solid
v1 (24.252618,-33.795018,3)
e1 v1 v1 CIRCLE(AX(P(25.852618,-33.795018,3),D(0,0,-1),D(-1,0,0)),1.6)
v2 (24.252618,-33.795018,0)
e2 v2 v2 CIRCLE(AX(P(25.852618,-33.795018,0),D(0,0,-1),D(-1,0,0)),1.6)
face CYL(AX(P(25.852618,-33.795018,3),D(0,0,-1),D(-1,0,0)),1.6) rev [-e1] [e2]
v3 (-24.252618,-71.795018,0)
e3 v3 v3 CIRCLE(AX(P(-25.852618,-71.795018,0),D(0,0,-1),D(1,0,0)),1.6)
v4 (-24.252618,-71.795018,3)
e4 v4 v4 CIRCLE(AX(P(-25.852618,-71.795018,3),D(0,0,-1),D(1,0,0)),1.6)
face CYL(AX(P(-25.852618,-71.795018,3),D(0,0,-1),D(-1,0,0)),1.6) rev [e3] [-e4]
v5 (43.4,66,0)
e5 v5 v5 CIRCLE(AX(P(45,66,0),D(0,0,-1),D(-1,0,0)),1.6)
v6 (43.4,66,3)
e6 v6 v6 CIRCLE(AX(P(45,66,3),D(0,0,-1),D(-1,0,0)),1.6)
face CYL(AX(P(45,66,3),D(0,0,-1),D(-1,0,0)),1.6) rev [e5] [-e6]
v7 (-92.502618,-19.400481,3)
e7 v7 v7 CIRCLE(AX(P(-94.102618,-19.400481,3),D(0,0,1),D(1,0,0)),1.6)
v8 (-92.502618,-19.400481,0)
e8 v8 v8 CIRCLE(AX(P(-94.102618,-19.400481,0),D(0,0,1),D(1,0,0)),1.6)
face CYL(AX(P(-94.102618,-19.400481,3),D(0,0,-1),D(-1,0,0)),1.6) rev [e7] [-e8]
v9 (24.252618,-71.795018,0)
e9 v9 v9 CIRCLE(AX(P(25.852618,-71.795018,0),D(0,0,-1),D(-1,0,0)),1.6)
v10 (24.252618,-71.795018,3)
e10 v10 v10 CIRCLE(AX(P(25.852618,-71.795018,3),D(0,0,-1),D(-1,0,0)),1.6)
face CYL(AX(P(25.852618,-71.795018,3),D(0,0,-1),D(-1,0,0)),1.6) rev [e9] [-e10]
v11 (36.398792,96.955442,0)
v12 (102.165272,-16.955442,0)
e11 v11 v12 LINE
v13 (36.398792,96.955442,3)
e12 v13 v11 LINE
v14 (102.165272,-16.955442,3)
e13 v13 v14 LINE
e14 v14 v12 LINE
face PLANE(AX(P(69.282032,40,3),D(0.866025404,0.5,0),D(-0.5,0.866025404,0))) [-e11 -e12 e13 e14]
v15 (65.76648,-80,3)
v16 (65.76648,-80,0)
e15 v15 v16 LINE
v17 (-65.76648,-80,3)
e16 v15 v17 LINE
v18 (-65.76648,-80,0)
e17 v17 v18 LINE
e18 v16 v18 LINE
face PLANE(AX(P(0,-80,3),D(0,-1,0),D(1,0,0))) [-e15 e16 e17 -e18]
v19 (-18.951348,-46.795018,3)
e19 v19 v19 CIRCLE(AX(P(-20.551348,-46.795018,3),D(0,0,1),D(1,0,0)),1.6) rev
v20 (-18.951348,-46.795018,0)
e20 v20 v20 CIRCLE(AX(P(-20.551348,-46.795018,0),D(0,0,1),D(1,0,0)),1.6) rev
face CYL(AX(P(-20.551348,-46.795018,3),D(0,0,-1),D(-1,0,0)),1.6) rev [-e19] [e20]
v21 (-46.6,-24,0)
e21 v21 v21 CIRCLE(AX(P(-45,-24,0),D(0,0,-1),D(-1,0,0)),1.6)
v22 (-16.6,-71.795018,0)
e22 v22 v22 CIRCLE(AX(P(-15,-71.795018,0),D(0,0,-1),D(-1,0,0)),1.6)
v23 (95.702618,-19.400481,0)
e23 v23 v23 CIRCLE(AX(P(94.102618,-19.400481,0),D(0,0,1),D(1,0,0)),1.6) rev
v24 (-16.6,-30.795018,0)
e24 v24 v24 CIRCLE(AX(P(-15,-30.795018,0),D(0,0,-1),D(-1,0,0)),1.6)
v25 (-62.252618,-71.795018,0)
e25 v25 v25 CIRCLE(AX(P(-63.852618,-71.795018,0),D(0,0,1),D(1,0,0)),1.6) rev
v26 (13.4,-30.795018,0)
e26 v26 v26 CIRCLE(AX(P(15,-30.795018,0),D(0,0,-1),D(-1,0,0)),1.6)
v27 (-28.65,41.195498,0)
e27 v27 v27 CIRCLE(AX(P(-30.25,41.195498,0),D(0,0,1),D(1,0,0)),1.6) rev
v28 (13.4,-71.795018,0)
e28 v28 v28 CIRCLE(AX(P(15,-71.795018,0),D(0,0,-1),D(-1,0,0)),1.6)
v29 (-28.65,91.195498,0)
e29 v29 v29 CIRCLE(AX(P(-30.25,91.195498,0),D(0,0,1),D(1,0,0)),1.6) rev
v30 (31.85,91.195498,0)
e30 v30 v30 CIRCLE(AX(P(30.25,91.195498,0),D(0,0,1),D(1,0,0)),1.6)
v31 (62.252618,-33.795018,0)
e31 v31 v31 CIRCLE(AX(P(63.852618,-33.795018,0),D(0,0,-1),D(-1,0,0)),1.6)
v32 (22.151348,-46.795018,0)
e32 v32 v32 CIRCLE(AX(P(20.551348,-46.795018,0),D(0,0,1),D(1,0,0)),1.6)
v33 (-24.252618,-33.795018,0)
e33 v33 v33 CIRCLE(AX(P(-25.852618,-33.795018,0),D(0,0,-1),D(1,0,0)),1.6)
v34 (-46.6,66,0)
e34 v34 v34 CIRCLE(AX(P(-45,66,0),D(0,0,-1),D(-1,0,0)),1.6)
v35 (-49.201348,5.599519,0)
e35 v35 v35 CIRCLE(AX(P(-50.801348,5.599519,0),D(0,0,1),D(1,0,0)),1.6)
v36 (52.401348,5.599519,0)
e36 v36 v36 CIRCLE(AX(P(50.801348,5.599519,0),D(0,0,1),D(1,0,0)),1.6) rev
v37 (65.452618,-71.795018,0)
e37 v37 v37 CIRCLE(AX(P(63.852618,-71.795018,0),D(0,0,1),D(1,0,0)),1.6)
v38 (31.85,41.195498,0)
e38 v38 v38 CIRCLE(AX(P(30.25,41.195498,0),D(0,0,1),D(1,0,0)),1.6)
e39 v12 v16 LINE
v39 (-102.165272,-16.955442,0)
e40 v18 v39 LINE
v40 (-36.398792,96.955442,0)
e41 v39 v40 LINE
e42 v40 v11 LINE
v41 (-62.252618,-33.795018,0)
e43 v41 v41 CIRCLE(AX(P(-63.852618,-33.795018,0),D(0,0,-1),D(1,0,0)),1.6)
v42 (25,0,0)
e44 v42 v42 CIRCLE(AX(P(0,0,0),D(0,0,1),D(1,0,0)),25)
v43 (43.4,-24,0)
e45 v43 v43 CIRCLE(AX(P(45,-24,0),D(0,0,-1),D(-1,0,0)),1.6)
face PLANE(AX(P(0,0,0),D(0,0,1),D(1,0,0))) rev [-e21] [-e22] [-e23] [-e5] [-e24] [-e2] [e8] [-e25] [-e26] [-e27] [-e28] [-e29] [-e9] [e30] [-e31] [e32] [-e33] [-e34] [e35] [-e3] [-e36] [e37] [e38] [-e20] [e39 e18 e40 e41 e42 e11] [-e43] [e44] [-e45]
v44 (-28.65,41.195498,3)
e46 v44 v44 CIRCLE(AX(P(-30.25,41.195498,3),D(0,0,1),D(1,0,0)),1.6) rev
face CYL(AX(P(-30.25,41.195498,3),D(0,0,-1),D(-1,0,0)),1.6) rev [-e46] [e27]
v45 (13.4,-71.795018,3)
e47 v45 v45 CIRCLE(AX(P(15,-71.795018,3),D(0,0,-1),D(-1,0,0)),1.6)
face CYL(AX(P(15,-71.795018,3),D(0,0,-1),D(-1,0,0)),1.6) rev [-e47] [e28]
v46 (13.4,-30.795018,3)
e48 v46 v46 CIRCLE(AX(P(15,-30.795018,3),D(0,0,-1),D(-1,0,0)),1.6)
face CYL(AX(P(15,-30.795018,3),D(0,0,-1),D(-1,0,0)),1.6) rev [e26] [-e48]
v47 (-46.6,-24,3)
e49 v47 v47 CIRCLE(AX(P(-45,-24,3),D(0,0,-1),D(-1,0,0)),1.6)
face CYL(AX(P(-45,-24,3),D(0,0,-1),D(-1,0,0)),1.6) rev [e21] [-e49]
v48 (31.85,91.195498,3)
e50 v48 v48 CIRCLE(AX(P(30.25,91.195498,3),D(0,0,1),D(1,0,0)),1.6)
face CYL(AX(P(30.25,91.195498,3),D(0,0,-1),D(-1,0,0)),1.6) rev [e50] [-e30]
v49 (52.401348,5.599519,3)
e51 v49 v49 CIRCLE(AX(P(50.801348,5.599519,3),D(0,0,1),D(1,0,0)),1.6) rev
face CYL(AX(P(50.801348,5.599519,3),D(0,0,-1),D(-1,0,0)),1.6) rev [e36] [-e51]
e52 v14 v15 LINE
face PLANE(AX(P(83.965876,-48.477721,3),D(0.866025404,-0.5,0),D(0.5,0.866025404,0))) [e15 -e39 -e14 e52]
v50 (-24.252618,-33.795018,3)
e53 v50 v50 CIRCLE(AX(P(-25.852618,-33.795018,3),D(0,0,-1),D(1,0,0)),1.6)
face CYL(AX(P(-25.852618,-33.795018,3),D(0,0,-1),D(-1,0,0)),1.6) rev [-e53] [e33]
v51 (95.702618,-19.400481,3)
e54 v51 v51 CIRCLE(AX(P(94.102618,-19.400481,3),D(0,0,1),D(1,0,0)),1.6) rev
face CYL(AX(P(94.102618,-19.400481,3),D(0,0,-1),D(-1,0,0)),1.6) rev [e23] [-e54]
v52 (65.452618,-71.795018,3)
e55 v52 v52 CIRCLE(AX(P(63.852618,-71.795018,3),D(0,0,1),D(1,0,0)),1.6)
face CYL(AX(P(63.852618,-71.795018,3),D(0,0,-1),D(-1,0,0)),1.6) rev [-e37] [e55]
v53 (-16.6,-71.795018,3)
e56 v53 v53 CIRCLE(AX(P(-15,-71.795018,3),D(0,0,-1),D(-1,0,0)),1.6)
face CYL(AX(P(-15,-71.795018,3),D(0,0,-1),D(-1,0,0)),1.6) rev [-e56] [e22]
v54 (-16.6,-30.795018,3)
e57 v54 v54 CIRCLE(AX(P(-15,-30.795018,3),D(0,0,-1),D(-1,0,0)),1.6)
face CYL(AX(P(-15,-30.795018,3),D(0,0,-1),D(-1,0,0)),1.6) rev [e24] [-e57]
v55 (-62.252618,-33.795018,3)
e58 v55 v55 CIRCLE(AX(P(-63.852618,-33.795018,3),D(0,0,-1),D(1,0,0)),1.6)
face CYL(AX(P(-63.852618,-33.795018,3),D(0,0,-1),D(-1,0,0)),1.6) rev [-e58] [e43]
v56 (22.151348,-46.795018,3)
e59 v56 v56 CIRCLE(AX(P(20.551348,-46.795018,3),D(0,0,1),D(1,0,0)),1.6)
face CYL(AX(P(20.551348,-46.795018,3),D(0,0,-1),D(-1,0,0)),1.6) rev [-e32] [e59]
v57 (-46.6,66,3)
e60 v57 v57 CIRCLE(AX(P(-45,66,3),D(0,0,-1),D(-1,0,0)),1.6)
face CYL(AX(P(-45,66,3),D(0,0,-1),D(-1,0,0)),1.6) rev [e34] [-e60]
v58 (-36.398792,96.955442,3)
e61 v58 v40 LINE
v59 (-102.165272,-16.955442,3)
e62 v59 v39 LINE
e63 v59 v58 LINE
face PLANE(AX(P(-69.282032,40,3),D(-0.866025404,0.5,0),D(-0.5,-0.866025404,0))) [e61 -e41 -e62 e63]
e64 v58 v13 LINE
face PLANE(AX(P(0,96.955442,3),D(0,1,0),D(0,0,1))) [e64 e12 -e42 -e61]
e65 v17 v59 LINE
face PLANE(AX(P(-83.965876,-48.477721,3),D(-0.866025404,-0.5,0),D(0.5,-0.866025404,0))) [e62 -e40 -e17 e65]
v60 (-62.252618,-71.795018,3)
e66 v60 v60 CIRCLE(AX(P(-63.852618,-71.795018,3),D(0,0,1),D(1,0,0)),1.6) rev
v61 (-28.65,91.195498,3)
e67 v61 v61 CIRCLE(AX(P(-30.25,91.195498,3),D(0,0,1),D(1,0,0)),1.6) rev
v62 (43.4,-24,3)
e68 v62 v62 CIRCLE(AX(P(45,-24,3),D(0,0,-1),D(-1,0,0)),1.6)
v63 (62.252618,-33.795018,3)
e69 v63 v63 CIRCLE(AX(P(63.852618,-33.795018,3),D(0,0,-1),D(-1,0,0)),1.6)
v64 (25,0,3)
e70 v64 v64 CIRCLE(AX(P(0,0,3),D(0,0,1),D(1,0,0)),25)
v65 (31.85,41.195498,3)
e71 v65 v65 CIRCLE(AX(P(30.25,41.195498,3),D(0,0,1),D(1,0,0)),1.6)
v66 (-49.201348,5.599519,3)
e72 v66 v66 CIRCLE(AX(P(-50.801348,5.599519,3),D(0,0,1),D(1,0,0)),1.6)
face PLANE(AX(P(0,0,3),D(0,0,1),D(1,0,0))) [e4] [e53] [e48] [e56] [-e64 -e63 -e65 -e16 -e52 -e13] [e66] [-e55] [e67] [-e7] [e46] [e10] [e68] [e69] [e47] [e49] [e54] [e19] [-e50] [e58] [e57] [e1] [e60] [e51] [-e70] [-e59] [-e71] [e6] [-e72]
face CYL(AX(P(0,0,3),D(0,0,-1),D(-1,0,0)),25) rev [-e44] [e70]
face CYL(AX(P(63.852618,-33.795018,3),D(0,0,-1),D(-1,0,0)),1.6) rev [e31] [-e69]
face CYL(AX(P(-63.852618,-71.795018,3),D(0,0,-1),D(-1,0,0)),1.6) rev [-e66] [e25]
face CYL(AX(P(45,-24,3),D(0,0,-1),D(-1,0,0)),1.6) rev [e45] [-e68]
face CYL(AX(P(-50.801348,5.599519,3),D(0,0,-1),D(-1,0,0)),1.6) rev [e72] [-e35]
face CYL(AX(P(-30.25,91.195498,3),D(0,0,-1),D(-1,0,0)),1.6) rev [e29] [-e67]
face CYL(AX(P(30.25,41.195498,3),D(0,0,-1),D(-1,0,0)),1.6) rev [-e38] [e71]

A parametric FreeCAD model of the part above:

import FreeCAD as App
import Part
import Sketcher
from FreeCAD import Vector
Q = App.Units.Quantity

doc = App.newDocument("Part")
body = doc.addObject("PartDesign::Body", "Body")

# Sketch on XY plane
sketch1 = body.newObject("Sketcher::SketchObject", "Sketch")
sketch1.AttachmentSupport = (doc.getObject("XY_Plane"), [""])
sketch1.MapMode = "FlatFace"
sketch1.addGeometry(Part.LineSegment(Vector(36.4, 97, 0), Vector(-36.4, 97, 0)), False)
sketch1.addGeometry(Part.LineSegment(Vector(-36.4, 97, 0), Vector(-102.2, -17, 0)), False)
sketch1.addGeometry(Part.LineSegment(Vector(-102.2, -17, 0), Vector(-65.8, -80, 0)), False)
sketch1.addGeometry(Part.LineSegment(Vector(-65.8, -80, 0), Vector(65.8, -80, 0)), False)
sketch1.addGeometry(Part.LineSegment(Vector(65.8, -80, 0), Vector(102.2, -17, 0)), False)
sketch1.addGeometry(Part.LineSegment(Vector(102.2, -17, 0), Vector(36.4, 97, 0)), False)
sketch1.addGeometry(Part.Circle(Vector(63.9, -71.8, 0), Vector(0, 0, 1), 1.6), False)
sketch1.addGeometry(Part.Circle(Vector(20.6, -46.8, 0), Vector(0, 0, 1), 1.6), False)
sketch1.addGeometry(Part.Circle(Vector(94.1, -19.4, 0), Vector(0, 0, 1), 1.6), False)
sketch1.addGeometry(Part.Circle(Vector(50.8, 5.6, 0), Vector(0, 0, 1), 1.6), False)
sketch1.addGeometry(Part.Circle(Vector(-20.6, -46.8, 0), Vector(0, 0, 1), 1.6), False)
sketch1.addGeometry(Part.Circle(Vector(-63.9, -71.8, 0), Vector(0, 0, 1), 1.6), False)
sketch1.addGeometry(Part.Circle(Vector(0, 0, 0), Vector(0, 0, 1), 25), False)
sketch1.addGeometry(Part.Circle(Vector(-94.1, -19.4, 0), Vector(0, 0, 1), 1.6), False)
sketch1.addGeometry(Part.Circle(Vector(-50.8, 5.6, 0), Vector(0, 0, 1), 1.6), False)
sketch1.addGeometry(Part.Circle(Vector(30.2, 41.2, 0), Vector(0, 0, 1), 1.6), False)
sketch1.addGeometry(Part.Circle(Vector(30.2, 91.2, 0), Vector(0, 0, 1), 1.6), False)
sketch1.addGeometry(Part.Circle(Vector(-30.2, 41.2, 0), Vector(0, 0, 1), 1.6), False)
sketch1.addGeometry(Part.Circle(Vector(-30.2, 91.2, 0), Vector(0, 0, 1), 1.6), False)
sketch1.addConstraint(Sketcher.Constraint("Coincident", 0, 2, 1, 1))
sketch1.addConstraint(Sketcher.Constraint("Coincident", 1, 2, 2, 1))
sketch1.addConstraint(Sketcher.Constraint("Coincident", 2, 2, 3, 1))
sketch1.addConstraint(Sketcher.Constraint("Coincident", 3, 2, 4, 1))
sketch1.addConstraint(Sketcher.Constraint("Coincident", 4, 2, 5, 1))
sketch1.addConstraint(Sketcher.Constraint("Coincident", 5, 2, 0, 1))
sketch1.addConstraint(Sketcher.Constraint("Horizontal", 0))
sketch1.addConstraint(Sketcher.Constraint("Horizontal", 3))
sketch1.addConstraint(Sketcher.Constraint("Coincident", 12, 3, -1, 1))
sketch1.addConstraint(Sketcher.Constraint("Equal", 6, 7))
sketch1.addConstraint(Sketcher.Constraint("Equal", 7, 8))
sketch1.addConstraint(Sketcher.Constraint("Equal", 8, 9))
sketch1.addConstraint(Sketcher.Constraint("Equal", 9, 10))
sketch1.addConstraint(Sketcher.Constraint("Equal", 10, 11))
sketch1.addConstraint(Sketcher.Constraint("Equal", 11, 13))
sketch1.addConstraint(Sketcher.Constraint("Equal", 13, 14))
sketch1.addConstraint(Sketcher.Constraint("Equal", 14, 15))
sketch1.addConstraint(Sketcher.Constraint("Equal", 15, 16))
sketch1.addConstraint(Sketcher.Constraint("Equal", 16, 17))
sketch1.addConstraint(Sketcher.Constraint("Equal", 17, 18))
sketch1.addConstraint(Sketcher.Constraint("Symmetric", 7, 3, 10, 3, -2))
sketch1.addConstraint(Sketcher.Constraint("Symmetric", 6, 3, 11, 3, -2))
sketch1.addConstraint(Sketcher.Constraint("Symmetric", 8, 3, 13, 3, -2))
sketch1.addConstraint(Sketcher.Constraint("Symmetric", 9, 3, 14, 3, -2))
sketch1.addConstraint(Sketcher.Constraint("Symmetric", 15, 3, 17, 3, -2))
sketch1.addConstraint(Sketcher.Constraint("Symmetric", 16, 3, 18, 3, -2))
sketch1.addConstraint(Sketcher.Constraint("Symmetric", 1, 2, 4, 2, -2))
sketch1.addConstraint(Sketcher.Constraint("Parallel", 1, 4))
sketch1.addConstraint(Sketcher.Constraint("Parallel", 2, 5))
sketch1.addConstraint(Sketcher.Constraint("Vertical", 15, 3, 16, 3))
sketch1.addConstraint(Sketcher.Constraint("Equal", 2, 4))
sketch1.addConstraint(Sketcher.Constraint("Diameter", 12, 50.0))
sketch1.addConstraint(Sketcher.Constraint("Diameter", 6, 3.2))
sketch1.addConstraint(Sketcher.Constraint("Angle", 1, Q("-120 deg")))
sketch1.addConstraint(Sketcher.Constraint("DistanceY", 2, 2, -1, 1, 80.0))
sketch1.addConstraint(Sketcher.Constraint("DistanceY", 6, 3, 7, 3, 25.0))
sketch1.addConstraint(Sketcher.Constraint("DistanceY", 8, 3, 9, 3, 25.0))
sketch1.addConstraint(Sketcher.Constraint("DistanceY", 15, 3, 16, 3, 50.0))
sketch1.addConstraint(Sketcher.Constraint("DistanceX", 17, 3, 15, 3, 60.5))
sketch1.addConstraint(Sketcher.Constraint("DistanceX", 6, 3, 8, 3, 30.25))
sketch1.addConstraint(Sketcher.Constraint("DistanceX", 7, 3, 9, 3, 30.25))
sketch1.addConstraint(Sketcher.Constraint("DistanceX", 3, 1, 3, 2, 131.532959))
sketch1.addConstraint(Sketcher.Constraint("DistanceY", -1, 1, 15, 3, 41.195498))
sketch1.addConstraint(Sketcher.Constraint("Distance", 1, 131.532959))
sketch1.addConstraint(Sketcher.Constraint("DistanceX", 0, 2, 0, 1, 72.797585))
sketch1.addConstraint(Sketcher.Constraint("DistanceX", -1, 1, 6, 3, 63.852618))
sketch1.addConstraint(Sketcher.Constraint("DistanceY", 8, 3, -1, 1, 19.400481))
sketch1.addConstraint(Sketcher.Constraint("DistanceX", 7, 3, 6, 3, 43.30127))
sketch1.addConstraint(Sketcher.Constraint("DistanceY", 6, 3, -1, 1, 71.795018))
pad1 = body.newObject("PartDesign::Pad", "Pad")
pad1.Profile = sketch1
pad1.Length = 3

# Sketch on XY plane
sketch2 = body.newObject("Sketcher::SketchObject", "Sketch001")
sketch2.AttachmentSupport = (doc.getObject("XY_Plane"), [""])
sketch2.MapMode = "FlatFace"
sketch2.addGeometry(Part.Circle(Vector(63.9, -33.8, 0), Vector(0, 0, 1), 1.6), False)
sketch2.addGeometry(Part.Circle(Vector(25.9, -33.8, 0), Vector(0, 0, 1), 1.6), False)
sketch2.addGeometry(Part.Circle(Vector(25.9, -71.8, 0), Vector(0, 0, 1), 1.6), False)
sketch2.addGeometry(Part.Circle(Vector(63.9, -71.8, 0), Vector(0, 0, 1), 1.6), False)
sketch2.addGeometry(Part.Circle(Vector(-15, -30.8, 0), Vector(0, 0, 1), 1.6), False)
sketch2.addGeometry(Part.Circle(Vector(15, -30.8, 0), Vector(0, 0, 1), 1.6), False)
sketch2.addGeometry(Part.Circle(Vector(15, -71.8, 0), Vector(0, 0, 1), 1.6), False)
sketch2.addGeometry(Part.Circle(Vector(-15, -71.8, 0), Vector(0, 0, 1), 1.6), False)
sketch2.addGeometry(Part.Circle(Vector(-45, 66, 0), Vector(0, 0, 1), 1.6), False)
sketch2.addGeometry(Part.Circle(Vector(45, 66, 0), Vector(0, 0, 1), 1.6), False)
sketch2.addGeometry(Part.Circle(Vector(45, -24, 0), Vector(0, 0, 1), 1.6), False)
sketch2.addGeometry(Part.Circle(Vector(-45, -24, 0), Vector(0, 0, 1), 1.6), False)
sketch2.addGeometry(Part.Circle(Vector(-63.9, -71.8, 0), Vector(0, 0, 1), 1.6), False)
sketch2.addGeometry(Part.Circle(Vector(-25.9, -71.8, 0), Vector(0, 0, 1), 1.6), False)
sketch2.addGeometry(Part.Circle(Vector(-25.9, -33.8, 0), Vector(0, 0, 1), 1.6), False)
sketch2.addGeometry(Part.Circle(Vector(-63.9, -33.8, 0), Vector(0, 0, 1), 1.6), False)
sketch2.addConstraint(Sketcher.Constraint("Equal", 0, 1))
sketch2.addConstraint(Sketcher.Constraint("Equal", 1, 2))
sketch2.addConstraint(Sketcher.Constraint("Equal", 2, 3))
sketch2.addConstraint(Sketcher.Constraint("Equal", 3, 4))
sketch2.addConstraint(Sketcher.Constraint("Equal", 4, 5))
sketch2.addConstraint(Sketcher.Constraint("Equal", 5, 6))
sketch2.addConstraint(Sketcher.Constraint("Equal", 6, 7))
sketch2.addConstraint(Sketcher.Constraint("Equal", 7, 8))
sketch2.addConstraint(Sketcher.Constraint("Equal", 8, 9))
sketch2.addConstraint(Sketcher.Constraint("Equal", 9, 10))
sketch2.addConstraint(Sketcher.Constraint("Equal", 10, 11))
sketch2.addConstraint(Sketcher.Constraint("Equal", 11, 12))
sketch2.addConstraint(Sketcher.Constraint("Equal", 12, 13))
sketch2.addConstraint(Sketcher.Constraint("Equal", 13, 14))
sketch2.addConstraint(Sketcher.Constraint("Equal", 14, 15))
sketch2.addConstraint(Sketcher.Constraint("Symmetric", 4, 3, 5, 3, -2))
sketch2.addConstraint(Sketcher.Constraint("Symmetric", 6, 3, 7, 3, -2))
sketch2.addConstraint(Sketcher.Constraint("Symmetric", 8, 3, 9, 3, -2))
sketch2.addConstraint(Sketcher.Constraint("Symmetric", 10, 3, 11, 3, -2))
sketch2.addConstraint(Sketcher.Constraint("Symmetric", 3, 3, 12, 3, -2))
sketch2.addConstraint(Sketcher.Constraint("Symmetric", 2, 3, 13, 3, -2))
sketch2.addConstraint(Sketcher.Constraint("Symmetric", 1, 3, 14, 3, -2))
sketch2.addConstraint(Sketcher.Constraint("Symmetric", 0, 3, 15, 3, -2))
sketch2.addConstraint(Sketcher.Constraint("Horizontal", 0, 3, 1, 3))
sketch2.addConstraint(Sketcher.Constraint("Horizontal", 2, 3, 3, 3))
sketch2.addConstraint(Sketcher.Constraint("Horizontal", 3, 3, 6, 3))
sketch2.addConstraint(Sketcher.Constraint("Vertical", 1, 3, 2, 3))
sketch2.addConstraint(Sketcher.Constraint("Vertical", 0, 3, 3, 3))
sketch2.addConstraint(Sketcher.Constraint("Vertical", 5, 3, 6, 3))
sketch2.addConstraint(Sketcher.Constraint("Vertical", 9, 3, 10, 3))
sketch2.addConstraint(Sketcher.Constraint("Diameter", 0, 3.2))
sketch2.addConstraint(Sketcher.Constraint("DistanceX", 4, 3, -1, 1, 15.0))
sketch2.addConstraint(Sketcher.Constraint("DistanceX", 8, 3, -1, 1, 45.0))
sketch2.addConstraint(Sketcher.Constraint("DistanceY", -1, 1, 8, 3, 66.0))
sketch2.addConstraint(Sketcher.Constraint("DistanceY", 10, 3, -1, 1, 24.0))
sketch2.addConstraint(Sketcher.Constraint("DistanceX", 1, 3, 0, 3, 38.0))
sketch2.addConstraint(Sketcher.Constraint("DistanceY", 2, 3, 1, 3, 38.0))
sketch2.addConstraint(Sketcher.Constraint("DistanceY", 1, 3, 4, 3, 3.0))
sketch2.addConstraint(Sketcher.Constraint("DistanceX", -1, 1, 0, 3, 63.852618))
sketch2.addConstraint(Sketcher.Constraint("DistanceY", 0, 3, -1, 1, 33.795018))
pocket1 = body.newObject("PartDesign::Pocket", "Pocket")
pocket1.Profile = sketch2
pocket1.Type = "ThroughAll"
pocket1.Reversed = True

doc.recompute()
